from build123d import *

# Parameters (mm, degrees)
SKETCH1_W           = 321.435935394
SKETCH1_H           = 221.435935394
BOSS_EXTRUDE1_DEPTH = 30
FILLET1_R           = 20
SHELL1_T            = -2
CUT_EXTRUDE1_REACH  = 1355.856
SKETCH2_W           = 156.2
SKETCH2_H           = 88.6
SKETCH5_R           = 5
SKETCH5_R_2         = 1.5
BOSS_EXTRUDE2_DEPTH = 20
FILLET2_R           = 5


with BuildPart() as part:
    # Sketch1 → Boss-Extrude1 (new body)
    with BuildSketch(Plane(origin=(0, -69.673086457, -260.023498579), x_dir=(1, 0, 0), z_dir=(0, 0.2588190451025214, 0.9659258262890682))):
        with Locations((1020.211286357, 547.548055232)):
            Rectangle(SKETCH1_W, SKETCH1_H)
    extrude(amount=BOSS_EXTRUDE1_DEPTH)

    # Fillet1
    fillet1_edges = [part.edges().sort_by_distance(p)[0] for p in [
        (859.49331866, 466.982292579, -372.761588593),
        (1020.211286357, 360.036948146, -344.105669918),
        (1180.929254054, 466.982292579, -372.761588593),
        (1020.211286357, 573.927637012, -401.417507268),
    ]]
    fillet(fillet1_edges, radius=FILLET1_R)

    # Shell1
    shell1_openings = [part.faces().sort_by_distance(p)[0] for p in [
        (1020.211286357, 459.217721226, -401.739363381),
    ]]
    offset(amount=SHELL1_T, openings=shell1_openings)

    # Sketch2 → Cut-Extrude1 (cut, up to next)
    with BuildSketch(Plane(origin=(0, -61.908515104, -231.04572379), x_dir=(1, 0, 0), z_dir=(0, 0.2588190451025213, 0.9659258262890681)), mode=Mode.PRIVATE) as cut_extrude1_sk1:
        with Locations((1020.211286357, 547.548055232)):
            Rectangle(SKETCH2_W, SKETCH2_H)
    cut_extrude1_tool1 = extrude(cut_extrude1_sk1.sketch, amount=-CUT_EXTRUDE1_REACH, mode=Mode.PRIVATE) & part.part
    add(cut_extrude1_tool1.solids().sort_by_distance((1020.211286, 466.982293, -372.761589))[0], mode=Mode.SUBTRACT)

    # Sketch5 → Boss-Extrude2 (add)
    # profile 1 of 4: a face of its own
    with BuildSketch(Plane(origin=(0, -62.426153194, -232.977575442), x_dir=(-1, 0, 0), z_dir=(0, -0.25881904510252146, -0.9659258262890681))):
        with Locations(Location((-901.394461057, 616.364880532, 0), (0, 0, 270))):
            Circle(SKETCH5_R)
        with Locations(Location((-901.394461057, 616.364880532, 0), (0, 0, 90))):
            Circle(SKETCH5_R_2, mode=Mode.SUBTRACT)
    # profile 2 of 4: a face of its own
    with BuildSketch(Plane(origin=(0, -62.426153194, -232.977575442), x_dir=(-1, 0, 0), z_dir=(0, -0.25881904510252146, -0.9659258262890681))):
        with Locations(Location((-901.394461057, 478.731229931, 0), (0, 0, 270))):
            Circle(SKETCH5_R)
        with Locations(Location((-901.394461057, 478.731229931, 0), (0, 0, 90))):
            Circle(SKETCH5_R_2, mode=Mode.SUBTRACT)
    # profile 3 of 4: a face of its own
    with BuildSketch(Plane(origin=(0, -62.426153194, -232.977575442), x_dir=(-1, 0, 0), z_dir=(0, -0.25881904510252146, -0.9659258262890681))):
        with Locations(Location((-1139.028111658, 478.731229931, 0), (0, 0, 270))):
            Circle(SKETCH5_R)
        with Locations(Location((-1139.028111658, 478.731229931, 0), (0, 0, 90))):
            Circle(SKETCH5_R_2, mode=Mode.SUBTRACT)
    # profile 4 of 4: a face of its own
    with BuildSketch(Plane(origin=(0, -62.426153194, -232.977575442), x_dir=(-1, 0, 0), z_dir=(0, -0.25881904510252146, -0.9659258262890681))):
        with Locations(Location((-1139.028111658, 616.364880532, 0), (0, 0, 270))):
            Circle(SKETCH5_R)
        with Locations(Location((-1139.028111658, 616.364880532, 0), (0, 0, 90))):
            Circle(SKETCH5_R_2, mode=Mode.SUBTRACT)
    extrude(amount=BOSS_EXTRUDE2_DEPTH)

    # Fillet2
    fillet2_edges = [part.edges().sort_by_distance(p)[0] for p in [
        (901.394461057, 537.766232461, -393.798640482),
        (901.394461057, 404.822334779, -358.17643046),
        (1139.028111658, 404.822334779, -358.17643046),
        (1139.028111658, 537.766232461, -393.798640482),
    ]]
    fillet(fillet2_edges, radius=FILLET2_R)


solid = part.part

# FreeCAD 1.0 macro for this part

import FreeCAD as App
import Part
import Sketcher
Q = App.Units.Quantity


def edges_at(feature, points):
    """Names of the edges that pass closest to the given points."""
    edges = feature.Shape.Edges
    near = lambda p: min(range(len(edges)), key=lambda i: edges[i].distToShape(Part.Vertex(*p))[0])
    return sorted({f"Edge{near(p) + 1}" for p in points})


def faces_at(feature, points):
    """Names of the faces that lie closest to the given points."""
    faces = feature.Shape.Faces
    near = lambda p: min(range(len(faces)), key=lambda i: faces[i].distToShape(Part.Vertex(*p))[0])
    return sorted({f"Face{near(p) + 1}" for p in points})


def add_polygon(sketch, points):
    """Adds a closed chain of lines whose ends are joined by coincident constraints."""
    first, n = sketch.GeometryCount, len(points)
    for a, b in zip(points, points[1:] + points[:1]):
        sketch.addGeometry(Part.LineSegment(App.Vector(*a, 0), App.Vector(*b, 0)), False)
    for i in range(n):
        sketch.addConstraint(Sketcher.Constraint("Coincident", first + i, 2, first + (i + 1) % n, 1))

doc = App.newDocument("Part")
body = doc.addObject("PartDesign::Body", "Body")

sketch1 = body.newObject("Sketcher::SketchObject", "Sketch")
sketch1.Placement = App.Placement(App.Vector(0, -69.673086, -260.023499), App.Rotation(App.Vector(1, 0, 0), App.Vector(0, 0.965925826, -0.258819045), App.Vector(0, 0.258819045, 0.965925826), "ZXY"))
add_polygon(sketch1, [(859, 658), (859, 437), (1181, 437), (1181, 658)])
sketch1.addConstraint([
    Sketcher.Constraint("Vertical", 0),
    Sketcher.Constraint("Horizontal", 1),
    Sketcher.Constraint("Vertical", 2),
    Sketcher.Constraint("Horizontal", 3),
    Sketcher.Constraint("DistanceX", 1, 1, 1, 2, Q("321.435935 mm")),
    Sketcher.Constraint("DistanceY", 0, 2, 0, 1, Q("221.435935 mm")),
    Sketcher.Constraint("DistanceX", -1, 1, 0, 2, Q("859.493319 mm")),
    Sketcher.Constraint("DistanceY", -1, 1, 0, 2, Q("436.830087 mm")),
])
pad1 = body.newObject("PartDesign::Pad", "Pad")
pad1.Profile = sketch1
pad1.Length = 30
doc.recompute()

fillet = body.newObject("PartDesign::Fillet", "Fillet")
fillet.Base = (pad1, edges_at(pad1, [
    (859.493, 466.982, -372.762),
    (1020.211, 360.037, -344.106),
    (1180.929, 466.982, -372.762),
    (1020.211, 573.928, -401.418),
]))
fillet.Radius = 20
doc.recompute()

thickness = body.newObject("PartDesign::Thickness", "Thickness")
thickness.Base = (fillet, faces_at(fillet, [(1020.211, 459.218, -401.739)]))
thickness.Value = 2
thickness.Reversed = True
thickness.Join = "Arc"

sketch2 = body.newObject("Sketcher::SketchObject", "Sketch001")
sketch2.Placement = App.Placement(App.Vector(0, -61.908515, -231.045724), App.Rotation(App.Vector(1, 0, 0), App.Vector(0, 0.965925826, -0.258819045), App.Vector(0, 0.258819045, 0.965925826), "ZXY"))
add_polygon(sketch2, [(942, 592), (942, 503), (1098, 503), (1098, 592)])
sketch2.addConstraint([
    Sketcher.Constraint("Vertical", 0),
    Sketcher.Constraint("Horizontal", 1),
    Sketcher.Constraint("Vertical", 2),
    Sketcher.Constraint("Horizontal", 3),
    Sketcher.Constraint("DistanceX", 1, 1, 1, 2, Q("156.2 mm")),
    Sketcher.Constraint("DistanceY", 0, 2, 0, 1, Q("88.6 mm")),
    Sketcher.Constraint("DistanceX", -1, 1, 0, 2, Q("942.111286 mm")),
    Sketcher.Constraint("DistanceY", -1, 1, 0, 2, Q("503.248055 mm")),
])
pocket1 = body.newObject("PartDesign::Pocket", "Pocket")
pocket1.Profile = sketch2
pocket1.Type = "UpToFirst"

sketch3 = body.newObject("Sketcher::SketchObject", "Sketch002")
sketch3.Placement = App.Placement(App.Vector(0, -62.426153, -232.977575), App.Rotation(App.Vector(-1, 0, 0), App.Vector(0, 0.965925826, -0.258819045), App.Vector(0, -0.258819045, -0.965925826), "ZXY"))
sketch3.addGeometry([
    Part.Circle(App.Vector(-901.4, 616.4, 0), App.Vector(0, 0, 1), 5),
    Part.Circle(App.Vector(-901.4, 616.4, 0), App.Vector(0, 0, 1), 1.5),
    Part.Circle(App.Vector(-901.4, 478.7, 0), App.Vector(0, 0, 1), 5),
    Part.Circle(App.Vector(-901.4, 478.7, 0), App.Vector(0, 0, 1), 1.5),
    Part.Circle(App.Vector(-1139, 478.7, 0), App.Vector(0, 0, 1), 5),
    Part.Circle(App.Vector(-1139, 478.7, 0), App.Vector(0, 0, 1), 1.5),
    Part.Circle(App.Vector(-1139, 616.4, 0), App.Vector(0, 0, 1), 5),
    Part.Circle(App.Vector(-1139, 616.4, 0), App.Vector(0, 0, 1), 1.5),
], False)
sketch3.addConstraint([
    Sketcher.Constraint("Coincident", 1, 3, 0, 3),
    Sketcher.Constraint("Coincident", 3, 3, 2, 3),
    Sketcher.Constraint("Coincident", 5, 3, 4, 3),
    Sketcher.Constraint("Coincident", 7, 3, 6, 3),
    Sketcher.Constraint("Equal", 0, 2),
    Sketcher.Constraint("Equal", 1, 3),
    Sketcher.Constraint("Equal", 2, 4),
    Sketcher.Constraint("Equal", 3, 5),
    Sketcher.Constraint("Equal", 4, 6),
    Sketcher.Constraint("Equal", 5, 7),
    Sketcher.Constraint("Horizontal", 3, 3, 4, 3),
    Sketcher.Constraint("Horizontal", 1, 3, 6, 3),
    Sketcher.Constraint("Vertical", 1, 3, 2, 3),
    Sketcher.Constraint("Vertical", 5, 3, 6, 3),
    Sketcher.Constraint("Diameter", 0, Q("10 mm")),
    Sketcher.Constraint("Diameter", 1, Q("3 mm")),
    Sketcher.Constraint("DistanceX", 0, 3, -1, 1, Q("901.394461 mm")),
    Sketcher.Constraint("DistanceY", -1, 1, 0, 3, Q("616.36488 mm")),
    Sketcher.Constraint("DistanceY", -1, 1, 2, 3, Q("478.73123 mm")),
    Sketcher.Constraint("DistanceX", 4, 3, -1, 1, Q("1139.028112 mm")),
])
pad2 = body.newObject("PartDesign::Pad", "Pad001")
pad2.Profile = sketch3
pad2.Length = 20
doc.recompute()

fillet2 = body.newObject("PartDesign::Fillet", "Fillet001")
fillet2.Base = (pad2, edges_at(pad2, [
    (901.394, 537.766, -393.799),
    (901.394, 404.822, -358.176),
    (1139.028, 404.822, -358.176),
    (1139.028, 537.766, -393.799),
]))
fillet2.Radius = 5

doc.recompute()
